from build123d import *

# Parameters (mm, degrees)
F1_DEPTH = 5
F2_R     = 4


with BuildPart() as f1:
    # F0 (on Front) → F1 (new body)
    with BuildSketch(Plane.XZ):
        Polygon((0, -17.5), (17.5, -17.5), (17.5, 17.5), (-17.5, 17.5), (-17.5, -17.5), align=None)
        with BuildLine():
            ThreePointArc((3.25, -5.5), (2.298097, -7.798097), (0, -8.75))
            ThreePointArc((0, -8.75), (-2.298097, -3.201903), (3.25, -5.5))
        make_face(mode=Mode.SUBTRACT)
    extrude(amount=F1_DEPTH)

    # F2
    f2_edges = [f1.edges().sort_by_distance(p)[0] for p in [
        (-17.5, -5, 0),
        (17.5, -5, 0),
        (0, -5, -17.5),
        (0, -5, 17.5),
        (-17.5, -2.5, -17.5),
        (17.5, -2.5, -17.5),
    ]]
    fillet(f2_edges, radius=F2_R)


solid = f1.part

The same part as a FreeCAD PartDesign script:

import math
import FreeCAD as App
import Part
import Sketcher


def edges_at(feature, points):
    """Names of the edges that pass closest to the given points."""
    edges = feature.Shape.Edges
    near = lambda p: min(range(len(edges)), key=lambda i: edges[i].distToShape(Part.Vertex(*p))[0])
    return sorted({f"Edge{near(p) + 1}" for p in points})

doc = App.newDocument("Part")
body = doc.addObject("PartDesign::Body", "Body")

sketch1 = body.newObject("Sketcher::SketchObject", "Sketch")
sketch1.AttachmentSupport = (doc.getObject("XZ_Plane"), [""])
sketch1.MapMode = "FlatFace"
sketch1.addGeometry(Part.LineSegment(App.Vector(17.5, -17.5, 0), App.Vector(17.5, 17.5, 0)), False)
sketch1.addGeometry(Part.LineSegment(App.Vector(17.5, 17.5, 0), App.Vector(-17.5, 17.5, 0)), False)
sketch1.addGeometry(Part.LineSegment(App.Vector(-17.5, 17.5, 0), App.Vector(-17.5, -17.5, 0)), False)
sketch1.addGeometry(Part.LineSegment(App.Vector(-17.5, -17.5, 0), App.Vector(17.5, -17.5, 0)), False)
sketch1.addGeometry(Part.ArcOfCircle(Part.Circle(App.Vector(0, -5.5, 0), App.Vector(0, 0, 1), 3.2), math.radians(0), math.radians(270)), False)
sketch1.addGeometry(Part.ArcOfCircle(Part.Circle(App.Vector(0, -5.5, 0), App.Vector(0, 0, 1), 3.3), math.radians(-90), math.radians(0)), False)
sketch1.addConstraint(Sketcher.Constraint("Coincident", 0, 2, 1, 1))
sketch1.addConstraint(Sketcher.Constraint("Coincident", 1, 2, 2, 1))
sketch1.addConstraint(Sketcher.Constraint("Coincident", 2, 2, 3, 1))
sketch1.addConstraint(Sketcher.Constraint("Coincident", 3, 2, 0, 1))
sketch1.addConstraint(Sketcher.Constraint("Tangent", 4, 1, 5, 2))
sketch1.addConstraint(Sketcher.Constraint("Coincident", 5, 1, 4, 2))
sketch1.addConstraint(Sketcher.Constraint("Vertical", 0))
sketch1.addConstraint(Sketcher.Constraint("Horizontal", 1))
sketch1.addConstraint(Sketcher.Constraint("Vertical", 2))
sketch1.addConstraint(Sketcher.Constraint("Horizontal", 3))
sketch1.addConstraint(Sketcher.Constraint("Symmetric", 0, 2, 2, 2, -1, 1))
sketch1.addConstraint(Sketcher.Constraint("PointOnObject", 4, 3, -2))
sketch1.addConstraint(Sketcher.Constraint("PointOnObject", 5, 1, -2))
sketch1.addConstraint(Sketcher.Constraint("Horizontal", 5, 3, 4, 1))
sketch1.addConstraint(Sketcher.Constraint("Equal", 3, 0))
sketch1.addConstraint(Sketcher.Constraint("DistanceX", 1, 2, 1, 1, 35.0))
sketch1.addConstraint(Sketcher.Constraint("Radius", 4, 3.25))
sketch1.addConstraint(Sketcher.Constraint("DistanceY", 5, 3, 0, 2, 23.0))
pad1 = body.newObject("PartDesign::Pad", "Pad")
pad1.Profile = sketch1
pad1.Length = 5
doc.recompute()

fillet = body.newObject("PartDesign::Fillet", "Fillet")
fillet.Base = (pad1, edges_at(pad1, [
    (-17.5, -5, 0),
    (17.5, -5, 0),
    (0, -5, -17.5),
    (0, -5, 17.5),
    (-17.5, -2.5, -17.5),
    (17.5, -2.5, -17.5),
]))
fillet.Radius = 4

doc.recompute()
